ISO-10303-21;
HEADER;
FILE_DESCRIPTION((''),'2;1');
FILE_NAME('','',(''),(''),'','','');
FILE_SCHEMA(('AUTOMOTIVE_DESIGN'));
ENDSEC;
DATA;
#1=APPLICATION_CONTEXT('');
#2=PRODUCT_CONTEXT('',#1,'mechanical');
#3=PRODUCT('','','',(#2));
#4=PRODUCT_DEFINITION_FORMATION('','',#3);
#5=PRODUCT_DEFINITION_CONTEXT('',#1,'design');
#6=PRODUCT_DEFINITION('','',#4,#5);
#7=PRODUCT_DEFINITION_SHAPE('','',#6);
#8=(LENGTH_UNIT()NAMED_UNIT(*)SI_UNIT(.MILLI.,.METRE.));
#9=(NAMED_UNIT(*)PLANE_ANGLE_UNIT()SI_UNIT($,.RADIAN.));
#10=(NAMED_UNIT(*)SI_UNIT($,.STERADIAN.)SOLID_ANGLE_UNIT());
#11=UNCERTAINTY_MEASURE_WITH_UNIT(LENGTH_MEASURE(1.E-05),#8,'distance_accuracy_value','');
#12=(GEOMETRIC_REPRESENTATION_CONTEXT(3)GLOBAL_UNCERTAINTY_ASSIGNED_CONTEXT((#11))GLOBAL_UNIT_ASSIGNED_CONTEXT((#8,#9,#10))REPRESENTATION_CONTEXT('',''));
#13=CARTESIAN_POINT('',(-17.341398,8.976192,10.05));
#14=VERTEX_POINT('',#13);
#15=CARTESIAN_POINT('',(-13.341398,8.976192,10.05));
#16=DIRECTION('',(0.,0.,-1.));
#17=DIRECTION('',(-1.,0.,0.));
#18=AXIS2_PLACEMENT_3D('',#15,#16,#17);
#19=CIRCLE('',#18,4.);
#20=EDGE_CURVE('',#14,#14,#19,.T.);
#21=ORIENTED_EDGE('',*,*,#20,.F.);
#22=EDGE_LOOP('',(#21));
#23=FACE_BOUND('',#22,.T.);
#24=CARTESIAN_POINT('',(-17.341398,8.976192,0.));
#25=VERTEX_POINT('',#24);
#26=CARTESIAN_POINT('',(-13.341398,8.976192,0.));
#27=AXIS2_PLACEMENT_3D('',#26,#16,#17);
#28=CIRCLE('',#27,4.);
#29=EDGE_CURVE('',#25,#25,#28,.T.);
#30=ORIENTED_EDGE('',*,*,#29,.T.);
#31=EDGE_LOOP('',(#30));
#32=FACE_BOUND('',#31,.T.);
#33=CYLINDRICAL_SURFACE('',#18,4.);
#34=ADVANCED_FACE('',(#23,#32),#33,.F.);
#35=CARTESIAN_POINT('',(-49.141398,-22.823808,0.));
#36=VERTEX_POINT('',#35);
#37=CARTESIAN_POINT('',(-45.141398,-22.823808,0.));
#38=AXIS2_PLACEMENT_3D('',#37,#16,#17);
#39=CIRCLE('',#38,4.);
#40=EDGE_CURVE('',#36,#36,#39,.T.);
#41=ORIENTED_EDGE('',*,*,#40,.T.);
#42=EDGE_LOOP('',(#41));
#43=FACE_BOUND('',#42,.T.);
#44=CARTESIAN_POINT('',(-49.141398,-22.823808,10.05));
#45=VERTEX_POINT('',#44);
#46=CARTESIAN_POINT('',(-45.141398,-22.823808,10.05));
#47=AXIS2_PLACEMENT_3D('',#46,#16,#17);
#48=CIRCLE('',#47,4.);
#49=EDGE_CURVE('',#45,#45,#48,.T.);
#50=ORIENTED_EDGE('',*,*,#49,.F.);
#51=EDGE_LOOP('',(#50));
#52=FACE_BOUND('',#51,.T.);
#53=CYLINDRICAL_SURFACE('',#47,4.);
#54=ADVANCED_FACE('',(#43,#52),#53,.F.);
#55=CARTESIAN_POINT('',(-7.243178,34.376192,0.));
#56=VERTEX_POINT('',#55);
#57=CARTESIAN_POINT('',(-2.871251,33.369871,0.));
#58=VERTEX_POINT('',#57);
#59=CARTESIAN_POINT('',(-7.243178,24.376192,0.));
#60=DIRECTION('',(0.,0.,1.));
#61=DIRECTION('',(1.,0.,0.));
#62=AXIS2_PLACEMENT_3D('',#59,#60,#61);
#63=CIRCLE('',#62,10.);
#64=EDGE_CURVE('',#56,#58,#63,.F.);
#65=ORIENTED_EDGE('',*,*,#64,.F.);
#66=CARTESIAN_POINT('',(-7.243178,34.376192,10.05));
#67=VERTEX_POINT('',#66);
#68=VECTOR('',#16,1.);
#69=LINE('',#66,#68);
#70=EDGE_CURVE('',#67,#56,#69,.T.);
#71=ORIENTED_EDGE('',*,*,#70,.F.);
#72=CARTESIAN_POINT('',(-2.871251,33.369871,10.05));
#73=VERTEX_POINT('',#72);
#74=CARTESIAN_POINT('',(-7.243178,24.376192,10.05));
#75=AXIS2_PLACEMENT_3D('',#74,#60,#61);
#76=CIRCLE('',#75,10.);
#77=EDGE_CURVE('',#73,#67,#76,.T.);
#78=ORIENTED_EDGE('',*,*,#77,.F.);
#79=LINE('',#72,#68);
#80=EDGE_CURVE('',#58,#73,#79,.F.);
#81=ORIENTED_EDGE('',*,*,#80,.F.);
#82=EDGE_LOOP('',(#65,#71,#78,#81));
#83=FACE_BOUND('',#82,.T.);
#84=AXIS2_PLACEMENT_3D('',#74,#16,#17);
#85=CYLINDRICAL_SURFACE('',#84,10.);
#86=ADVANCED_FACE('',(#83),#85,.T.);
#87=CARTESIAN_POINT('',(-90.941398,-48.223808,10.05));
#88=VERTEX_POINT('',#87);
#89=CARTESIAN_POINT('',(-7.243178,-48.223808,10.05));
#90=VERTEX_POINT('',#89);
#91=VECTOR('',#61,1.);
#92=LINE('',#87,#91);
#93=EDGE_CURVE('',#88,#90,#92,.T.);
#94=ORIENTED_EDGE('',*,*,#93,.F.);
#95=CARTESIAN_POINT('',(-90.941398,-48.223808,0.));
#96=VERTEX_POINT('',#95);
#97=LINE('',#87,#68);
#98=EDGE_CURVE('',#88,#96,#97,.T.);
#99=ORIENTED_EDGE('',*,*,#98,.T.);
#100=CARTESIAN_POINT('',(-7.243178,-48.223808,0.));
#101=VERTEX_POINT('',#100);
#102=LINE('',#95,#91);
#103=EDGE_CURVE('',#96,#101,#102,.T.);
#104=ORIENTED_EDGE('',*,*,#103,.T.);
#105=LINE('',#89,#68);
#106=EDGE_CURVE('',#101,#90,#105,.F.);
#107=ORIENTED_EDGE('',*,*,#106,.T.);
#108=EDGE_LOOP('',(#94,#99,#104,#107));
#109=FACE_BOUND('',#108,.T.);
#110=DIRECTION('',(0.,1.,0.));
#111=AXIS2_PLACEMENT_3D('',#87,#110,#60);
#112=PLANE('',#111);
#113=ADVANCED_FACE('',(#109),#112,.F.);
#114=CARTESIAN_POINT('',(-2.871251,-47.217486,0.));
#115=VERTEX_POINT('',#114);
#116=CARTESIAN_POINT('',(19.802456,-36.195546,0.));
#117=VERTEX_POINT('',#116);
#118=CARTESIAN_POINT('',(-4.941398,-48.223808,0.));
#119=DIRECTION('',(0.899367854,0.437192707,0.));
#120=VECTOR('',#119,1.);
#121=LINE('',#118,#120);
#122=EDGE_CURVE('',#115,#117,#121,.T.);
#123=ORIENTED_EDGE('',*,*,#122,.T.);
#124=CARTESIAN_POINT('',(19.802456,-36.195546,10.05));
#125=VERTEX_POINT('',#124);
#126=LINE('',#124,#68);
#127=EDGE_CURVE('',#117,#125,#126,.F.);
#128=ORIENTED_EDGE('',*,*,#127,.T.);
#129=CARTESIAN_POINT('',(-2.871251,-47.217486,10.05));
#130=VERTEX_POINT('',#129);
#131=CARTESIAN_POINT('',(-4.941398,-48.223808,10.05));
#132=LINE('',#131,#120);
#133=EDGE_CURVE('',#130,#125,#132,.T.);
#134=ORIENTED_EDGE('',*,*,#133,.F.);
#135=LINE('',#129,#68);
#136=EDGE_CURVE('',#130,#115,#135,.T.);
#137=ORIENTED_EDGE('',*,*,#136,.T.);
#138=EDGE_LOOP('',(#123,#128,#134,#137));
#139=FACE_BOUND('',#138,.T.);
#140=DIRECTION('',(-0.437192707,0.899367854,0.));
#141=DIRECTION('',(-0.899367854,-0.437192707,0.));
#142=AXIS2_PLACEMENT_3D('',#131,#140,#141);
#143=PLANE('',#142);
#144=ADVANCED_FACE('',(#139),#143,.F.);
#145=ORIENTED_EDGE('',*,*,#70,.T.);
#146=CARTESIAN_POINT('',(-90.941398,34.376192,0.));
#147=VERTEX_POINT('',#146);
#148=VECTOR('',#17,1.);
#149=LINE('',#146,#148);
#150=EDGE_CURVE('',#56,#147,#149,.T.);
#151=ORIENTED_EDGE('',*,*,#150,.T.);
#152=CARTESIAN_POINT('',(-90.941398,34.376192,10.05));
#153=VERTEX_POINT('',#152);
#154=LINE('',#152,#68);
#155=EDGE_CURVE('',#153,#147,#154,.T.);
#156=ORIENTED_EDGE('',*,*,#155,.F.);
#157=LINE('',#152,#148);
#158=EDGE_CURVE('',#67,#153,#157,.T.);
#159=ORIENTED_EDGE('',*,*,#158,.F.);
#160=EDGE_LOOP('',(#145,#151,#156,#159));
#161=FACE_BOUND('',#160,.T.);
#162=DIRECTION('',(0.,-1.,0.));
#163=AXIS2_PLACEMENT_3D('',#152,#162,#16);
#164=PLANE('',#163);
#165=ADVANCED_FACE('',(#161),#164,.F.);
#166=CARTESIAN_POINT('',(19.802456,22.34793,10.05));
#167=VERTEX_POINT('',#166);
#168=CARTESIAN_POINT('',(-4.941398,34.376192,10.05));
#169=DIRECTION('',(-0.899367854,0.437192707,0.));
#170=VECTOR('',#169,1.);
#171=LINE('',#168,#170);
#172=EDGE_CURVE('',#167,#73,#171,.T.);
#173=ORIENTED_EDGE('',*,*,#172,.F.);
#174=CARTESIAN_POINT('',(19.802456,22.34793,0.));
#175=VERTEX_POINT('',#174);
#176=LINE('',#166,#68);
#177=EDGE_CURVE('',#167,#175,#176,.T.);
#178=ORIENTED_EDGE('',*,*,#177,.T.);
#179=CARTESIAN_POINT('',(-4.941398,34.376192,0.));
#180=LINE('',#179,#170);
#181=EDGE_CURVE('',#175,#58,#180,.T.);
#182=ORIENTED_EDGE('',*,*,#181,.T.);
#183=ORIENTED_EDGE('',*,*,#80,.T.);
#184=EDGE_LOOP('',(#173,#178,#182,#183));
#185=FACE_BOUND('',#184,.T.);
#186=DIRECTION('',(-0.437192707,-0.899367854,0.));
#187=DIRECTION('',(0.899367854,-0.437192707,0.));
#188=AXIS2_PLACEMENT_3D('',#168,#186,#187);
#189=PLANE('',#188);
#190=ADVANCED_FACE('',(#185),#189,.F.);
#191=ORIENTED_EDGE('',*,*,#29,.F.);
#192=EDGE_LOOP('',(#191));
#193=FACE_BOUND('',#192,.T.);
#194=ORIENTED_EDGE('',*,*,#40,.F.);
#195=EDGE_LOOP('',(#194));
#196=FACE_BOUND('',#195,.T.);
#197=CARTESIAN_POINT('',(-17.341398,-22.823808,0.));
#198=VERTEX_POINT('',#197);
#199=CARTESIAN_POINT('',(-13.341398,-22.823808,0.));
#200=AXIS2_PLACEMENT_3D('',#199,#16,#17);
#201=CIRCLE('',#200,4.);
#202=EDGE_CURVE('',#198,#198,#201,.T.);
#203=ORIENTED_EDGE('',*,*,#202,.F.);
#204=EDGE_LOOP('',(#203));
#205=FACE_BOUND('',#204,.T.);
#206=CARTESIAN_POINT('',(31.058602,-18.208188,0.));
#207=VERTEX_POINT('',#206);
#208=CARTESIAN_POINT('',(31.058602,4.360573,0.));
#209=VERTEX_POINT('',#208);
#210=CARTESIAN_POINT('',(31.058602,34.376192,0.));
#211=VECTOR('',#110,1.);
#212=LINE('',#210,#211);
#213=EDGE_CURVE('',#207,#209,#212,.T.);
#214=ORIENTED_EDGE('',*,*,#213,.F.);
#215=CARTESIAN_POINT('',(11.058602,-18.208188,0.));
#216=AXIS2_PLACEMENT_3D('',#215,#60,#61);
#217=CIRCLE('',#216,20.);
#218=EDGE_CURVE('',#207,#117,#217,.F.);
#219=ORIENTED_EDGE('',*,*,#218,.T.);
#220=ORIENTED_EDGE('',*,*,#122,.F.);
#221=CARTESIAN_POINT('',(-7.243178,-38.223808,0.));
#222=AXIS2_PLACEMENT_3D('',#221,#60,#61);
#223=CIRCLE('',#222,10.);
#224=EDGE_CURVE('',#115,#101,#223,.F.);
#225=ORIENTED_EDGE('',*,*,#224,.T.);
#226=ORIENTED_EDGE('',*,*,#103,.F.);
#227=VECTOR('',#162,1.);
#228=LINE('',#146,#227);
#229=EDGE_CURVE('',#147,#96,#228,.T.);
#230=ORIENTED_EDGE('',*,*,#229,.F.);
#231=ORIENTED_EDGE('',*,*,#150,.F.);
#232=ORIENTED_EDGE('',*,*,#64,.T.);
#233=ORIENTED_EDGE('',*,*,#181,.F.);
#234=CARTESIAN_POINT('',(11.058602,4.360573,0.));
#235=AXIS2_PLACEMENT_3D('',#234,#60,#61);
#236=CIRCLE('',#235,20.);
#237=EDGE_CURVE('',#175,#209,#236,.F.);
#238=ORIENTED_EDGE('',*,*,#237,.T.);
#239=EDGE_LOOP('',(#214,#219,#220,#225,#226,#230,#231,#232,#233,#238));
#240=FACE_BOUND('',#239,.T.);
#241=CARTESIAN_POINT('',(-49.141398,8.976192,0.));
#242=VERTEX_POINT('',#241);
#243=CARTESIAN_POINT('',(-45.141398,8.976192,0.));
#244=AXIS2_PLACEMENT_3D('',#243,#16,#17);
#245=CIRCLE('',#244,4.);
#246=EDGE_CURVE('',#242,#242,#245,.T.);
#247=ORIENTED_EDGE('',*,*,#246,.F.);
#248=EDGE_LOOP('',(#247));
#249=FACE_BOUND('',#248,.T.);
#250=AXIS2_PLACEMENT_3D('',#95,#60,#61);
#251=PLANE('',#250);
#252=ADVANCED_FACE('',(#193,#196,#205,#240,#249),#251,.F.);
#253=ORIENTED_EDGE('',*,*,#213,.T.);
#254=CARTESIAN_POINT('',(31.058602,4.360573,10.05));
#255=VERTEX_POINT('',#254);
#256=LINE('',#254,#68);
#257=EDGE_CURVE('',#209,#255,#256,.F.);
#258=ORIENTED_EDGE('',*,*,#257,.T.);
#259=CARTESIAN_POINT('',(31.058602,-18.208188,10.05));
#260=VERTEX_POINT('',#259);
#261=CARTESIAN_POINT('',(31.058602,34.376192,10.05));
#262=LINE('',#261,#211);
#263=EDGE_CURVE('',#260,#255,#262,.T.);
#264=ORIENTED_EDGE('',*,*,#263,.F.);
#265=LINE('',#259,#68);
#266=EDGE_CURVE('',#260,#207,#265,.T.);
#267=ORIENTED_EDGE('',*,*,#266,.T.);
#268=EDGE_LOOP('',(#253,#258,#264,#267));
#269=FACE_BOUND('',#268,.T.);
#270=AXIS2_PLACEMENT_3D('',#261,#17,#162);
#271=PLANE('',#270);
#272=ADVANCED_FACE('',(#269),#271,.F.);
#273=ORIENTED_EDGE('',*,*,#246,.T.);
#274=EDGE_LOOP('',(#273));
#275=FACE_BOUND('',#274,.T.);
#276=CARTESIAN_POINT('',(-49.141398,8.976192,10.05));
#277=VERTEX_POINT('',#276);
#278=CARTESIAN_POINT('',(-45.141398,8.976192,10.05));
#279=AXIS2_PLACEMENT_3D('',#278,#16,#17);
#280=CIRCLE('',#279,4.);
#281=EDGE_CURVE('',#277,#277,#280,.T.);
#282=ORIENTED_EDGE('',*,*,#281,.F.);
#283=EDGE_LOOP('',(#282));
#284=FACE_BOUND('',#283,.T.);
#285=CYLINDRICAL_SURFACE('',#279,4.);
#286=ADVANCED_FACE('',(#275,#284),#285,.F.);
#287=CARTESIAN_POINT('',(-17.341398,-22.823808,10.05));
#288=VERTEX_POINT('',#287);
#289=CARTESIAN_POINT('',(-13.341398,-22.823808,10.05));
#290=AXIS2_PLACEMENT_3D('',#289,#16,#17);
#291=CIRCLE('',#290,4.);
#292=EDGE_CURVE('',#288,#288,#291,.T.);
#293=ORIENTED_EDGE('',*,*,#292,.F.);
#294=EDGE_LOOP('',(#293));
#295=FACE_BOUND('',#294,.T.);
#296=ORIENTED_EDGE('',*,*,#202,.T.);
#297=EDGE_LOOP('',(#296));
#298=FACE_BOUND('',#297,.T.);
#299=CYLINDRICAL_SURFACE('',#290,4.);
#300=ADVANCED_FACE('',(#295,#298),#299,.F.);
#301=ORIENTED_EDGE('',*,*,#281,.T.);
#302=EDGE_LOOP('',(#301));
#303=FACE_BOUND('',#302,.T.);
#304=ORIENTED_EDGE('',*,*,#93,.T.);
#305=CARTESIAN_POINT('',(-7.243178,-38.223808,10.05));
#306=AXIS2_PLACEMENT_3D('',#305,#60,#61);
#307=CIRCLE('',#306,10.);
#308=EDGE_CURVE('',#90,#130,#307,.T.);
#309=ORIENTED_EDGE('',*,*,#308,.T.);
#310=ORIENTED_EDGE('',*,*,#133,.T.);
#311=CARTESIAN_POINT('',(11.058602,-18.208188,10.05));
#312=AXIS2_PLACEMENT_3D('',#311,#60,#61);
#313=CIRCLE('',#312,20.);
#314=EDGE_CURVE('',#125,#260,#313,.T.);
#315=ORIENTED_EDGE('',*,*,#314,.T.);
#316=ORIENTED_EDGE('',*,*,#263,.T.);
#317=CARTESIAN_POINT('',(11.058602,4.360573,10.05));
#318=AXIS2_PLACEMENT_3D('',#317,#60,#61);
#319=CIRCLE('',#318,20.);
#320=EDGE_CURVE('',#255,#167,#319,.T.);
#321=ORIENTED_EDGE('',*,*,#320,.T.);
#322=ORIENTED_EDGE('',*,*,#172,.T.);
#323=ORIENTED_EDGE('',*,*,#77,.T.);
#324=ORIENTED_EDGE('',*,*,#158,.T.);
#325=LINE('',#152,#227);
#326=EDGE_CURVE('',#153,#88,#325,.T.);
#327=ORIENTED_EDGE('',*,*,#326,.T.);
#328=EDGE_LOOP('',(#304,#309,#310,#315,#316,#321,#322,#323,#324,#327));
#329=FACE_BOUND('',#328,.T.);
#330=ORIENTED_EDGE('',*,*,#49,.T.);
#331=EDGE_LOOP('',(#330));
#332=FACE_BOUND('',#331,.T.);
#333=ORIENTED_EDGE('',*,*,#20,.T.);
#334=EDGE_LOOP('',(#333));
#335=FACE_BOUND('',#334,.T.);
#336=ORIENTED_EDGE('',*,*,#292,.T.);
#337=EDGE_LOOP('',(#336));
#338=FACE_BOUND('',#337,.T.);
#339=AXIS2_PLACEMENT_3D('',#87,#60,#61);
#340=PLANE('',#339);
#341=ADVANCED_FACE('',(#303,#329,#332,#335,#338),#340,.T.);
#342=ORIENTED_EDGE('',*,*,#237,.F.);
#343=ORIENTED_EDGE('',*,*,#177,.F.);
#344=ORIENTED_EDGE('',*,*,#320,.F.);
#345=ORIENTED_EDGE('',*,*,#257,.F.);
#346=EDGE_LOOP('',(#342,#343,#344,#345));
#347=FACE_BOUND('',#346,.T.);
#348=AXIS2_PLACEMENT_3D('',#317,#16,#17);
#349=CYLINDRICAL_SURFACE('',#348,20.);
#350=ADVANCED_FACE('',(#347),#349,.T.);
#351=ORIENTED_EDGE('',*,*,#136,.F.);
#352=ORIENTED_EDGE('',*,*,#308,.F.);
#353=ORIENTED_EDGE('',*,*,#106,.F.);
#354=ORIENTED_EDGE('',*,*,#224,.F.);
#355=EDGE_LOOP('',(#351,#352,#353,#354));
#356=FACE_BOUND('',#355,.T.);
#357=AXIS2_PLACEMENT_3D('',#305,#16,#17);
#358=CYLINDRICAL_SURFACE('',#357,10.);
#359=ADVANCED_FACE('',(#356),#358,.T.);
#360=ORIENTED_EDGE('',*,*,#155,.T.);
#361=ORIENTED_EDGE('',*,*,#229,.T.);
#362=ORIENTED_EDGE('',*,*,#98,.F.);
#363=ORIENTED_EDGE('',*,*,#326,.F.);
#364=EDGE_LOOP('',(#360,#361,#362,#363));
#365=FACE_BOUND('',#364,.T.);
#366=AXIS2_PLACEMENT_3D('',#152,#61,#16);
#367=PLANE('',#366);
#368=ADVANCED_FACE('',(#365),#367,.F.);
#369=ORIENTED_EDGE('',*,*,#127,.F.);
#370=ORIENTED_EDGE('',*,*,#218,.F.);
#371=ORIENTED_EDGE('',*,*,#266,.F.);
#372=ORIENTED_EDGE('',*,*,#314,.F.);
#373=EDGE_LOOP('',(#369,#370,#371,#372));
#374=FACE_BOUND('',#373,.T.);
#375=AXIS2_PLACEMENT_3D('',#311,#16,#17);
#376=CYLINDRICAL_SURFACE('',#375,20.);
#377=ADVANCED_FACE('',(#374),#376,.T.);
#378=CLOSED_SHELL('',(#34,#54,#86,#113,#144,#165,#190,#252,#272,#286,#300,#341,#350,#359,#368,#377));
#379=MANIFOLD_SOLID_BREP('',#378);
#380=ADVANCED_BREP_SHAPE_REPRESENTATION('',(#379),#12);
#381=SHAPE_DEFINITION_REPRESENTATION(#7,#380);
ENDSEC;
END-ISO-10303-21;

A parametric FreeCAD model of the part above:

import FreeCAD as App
import Part
import Sketcher

V = App.Vector
Q = App.Units.Quantity


def edges_at(feature, points):
    """Names of the edges that pass closest to the given points."""
    edges = feature.Shape.Edges
    near = lambda p: min(range(len(edges)), key=lambda i: edges[i].distToShape(Part.Vertex(*p))[0])
    return sorted({f"Edge{near(p) + 1}" for p in points})

doc = App.newDocument("Part")
params = doc.addObject("Spreadsheet::Sheet", "Params")
for row, (alias, value) in enumerate([
    ("sketch1_width", "122 mm"),
    ("sketch1_height", "82.6 mm"),
    ("pad1_length", "10.05 mm"),
    ("sketch2_diameter", "8 mm"),
    ("fillet_radius", "10 mm"),
    ("fillet2_radius", "20 mm"),
], start=1):
    params.set(f"A{row}", alias)
    params.set(f"B{row}", "=" + value)
    params.setAlias(f"B{row}", alias)

body = doc.addObject("PartDesign::Body", "Body")

# Sketch on XY plane
sketch1 = body.newObject("Sketcher::SketchObject", "Sketch")
sketch1.AttachmentSupport = (doc.getObject("XY_Plane"), [""])
sketch1.MapMode = "FlatFace"
sketch1.addGeometry(Part.LineSegment(V(-91, 34, 0), V(-91, -48, 0)), False)
sketch1.addGeometry(Part.LineSegment(V(-91, -48, 0), V(31, -48, 0)), False)
sketch1.addGeometry(Part.LineSegment(V(31, -48, 0), V(31, 34, 0)), False)
sketch1.addGeometry(Part.LineSegment(V(31, 34, 0), V(-91, 34, 0)), False)
sketch1.addConstraint(Sketcher.Constraint("Coincident", 0, 2, 1, 1))
sketch1.addConstraint(Sketcher.Constraint("Coincident", 1, 2, 2, 1))
sketch1.addConstraint(Sketcher.Constraint("Coincident", 2, 2, 3, 1))
sketch1.addConstraint(Sketcher.Constraint("Coincident", 3, 2, 0, 1))
sketch1.addConstraint(Sketcher.Constraint("Vertical", 0))
sketch1.addConstraint(Sketcher.Constraint("Horizontal", 1))
sketch1.addConstraint(Sketcher.Constraint("Vertical", 2))
sketch1.addConstraint(Sketcher.Constraint("Horizontal", 3))
sketch1.addConstraint(Sketcher.Constraint("DistanceX", 1, 1, 1, 2, Q("122 mm")))
sketch1.addConstraint(Sketcher.Constraint("DistanceY", 0, 2, 0, 1, Q("82.6 mm")))
sketch1.addConstraint(Sketcher.Constraint("DistanceX", 0, 2, -1, 1, Q("90.941398 mm")))
sketch1.addConstraint(Sketcher.Constraint("DistanceY", 0, 2, -1, 1, Q("48.223808 mm")))
sketch1.setExpression("Constraints[8]", "Params.sketch1_width")
sketch1.setExpression("Constraints[9]", "Params.sketch1_height")
pad1 = body.newObject("PartDesign::Pad", "Pad")
pad1.Profile = sketch1
pad1.setExpression("Length", "Params.pad1_length")

# Sketch on XY plane
sketch2 = body.newObject("Sketcher::SketchObject", "Sketch001")
sketch2.AttachmentSupport = (doc.getObject("XY_Plane"), [""])
sketch2.MapMode = "FlatFace"
sketch2.addGeometry(Part.Circle(V(-45.1, 9, 0), V(0, 0, 1), 4), False)
sketch2.addGeometry(Part.Circle(V(-45.1, -22.8, 0), V(0, 0, 1), 4), False)
sketch2.addGeometry(Part.Circle(V(-13.3, 9, 0), V(0, 0, 1), 4), False)
sketch2.addGeometry(Part.Circle(V(-13.3, -22.8, 0), V(0, 0, 1), 4), False)
sketch2.addConstraint(Sketcher.Constraint("Equal", 0, 1))
sketch2.addConstraint(Sketcher.Constraint("Equal", 1, 2))
sketch2.addConstraint(Sketcher.Constraint("Equal", 2, 3))
sketch2.addConstraint(Sketcher.Constraint("Horizontal", 0, 3, 2, 3))
sketch2.addConstraint(Sketcher.Constraint("Horizontal", 1, 3, 3, 3))
sketch2.addConstraint(Sketcher.Constraint("Vertical", 0, 3, 1, 3))
sketch2.addConstraint(Sketcher.Constraint("Vertical", 2, 3, 3, 3))
sketch2.addConstraint(Sketcher.Constraint("Diameter", 0, Q("8 mm")))
sketch2.addConstraint(Sketcher.Constraint("DistanceY", 1, 3, 0, 3, Q("31.8 mm")))
sketch2.addConstraint(Sketcher.Constraint("DistanceX", 0, 3, 2, 3, Q("31.8 mm")))
sketch2.addConstraint(Sketcher.Constraint("DistanceX", 0, 3, -1, 1, Q("45.141398 mm")))
sketch2.addConstraint(Sketcher.Constraint("DistanceY", -1, 1, 0, 3, Q("8.976192 mm")))
sketch2.setExpression("Constraints[7]", "Params.sketch2_diameter")
pocket1 = body.newObject("PartDesign::Pocket", "Pocket")
pocket1.Profile = sketch2
pocket1.Type = "ThroughAll"
pocket1.Reversed = True

# Sketch on XY plane
sketch3 = body.newObject("Sketcher::SketchObject", "Sketch002")
sketch3.AttachmentSupport = (doc.getObject("XY_Plane"), [""])
sketch3.MapMode = "FlatFace"
sketch3.addGeometry(Part.LineSegment(V(31, 17, 0), V(-5, 34, 0)), False)
sketch3.addGeometry(Part.LineSegment(V(-5, 34, 0), V(39, 43, 0)), False)
sketch3.addGeometry(Part.LineSegment(V(39, 43, 0), V(31, 17, 0)), False)
sketch3.addGeometry(Part.LineSegment(V(31, -31, 0), V(39, -57, 0)), False)
sketch3.addGeometry(Part.LineSegment(V(39, -57, 0), V(-5, -48, 0)), False)
sketch3.addGeometry(Part.LineSegment(V(-5, -48, 0), V(31, -31, 0)), False)
sketch3.addConstraint(Sketcher.Constraint("Coincident", 0, 2, 1, 1))
sketch3.addConstraint(Sketcher.Constraint("Coincident", 1, 2, 2, 1))
sketch3.addConstraint(Sketcher.Constraint("Coincident", 2, 2, 0, 1))
sketch3.addConstraint(Sketcher.Constraint("Coincident", 3, 2, 4, 1))
sketch3.addConstraint(Sketcher.Constraint("Coincident", 4, 2, 5, 1))
sketch3.addConstraint(Sketcher.Constraint("Coincident", 5, 2, 3, 1))
sketch3.addConstraint(Sketcher.Constraint("Vertical", 1, 2, 3, 2))
sketch3.addConstraint(Sketcher.Constraint("Vertical", 0, 2, 4, 2))
sketch3.addConstraint(Sketcher.Constraint("Vertical", 2, 2, 5, 2))
sketch3.addConstraint(Sketcher.Constraint("Equal", 2, 3))
sketch3.addConstraint(Sketcher.Constraint("Equal", 1, 4))
sketch3.addConstraint(Sketcher.Constraint("DistanceX", 0, 2, 2, 2, Q("36 mm")))
sketch3.addConstraint(Sketcher.Constraint("DistanceY", 2, 2, 0, 2, Q("17.5 mm")))
sketch3.addConstraint(Sketcher.Constraint("DistanceY", 4, 2, 2, 2, Q("65.1 mm")))
sketch3.addConstraint(Sketcher.Constraint("DistanceX", 0, 2, -1, 1, Q("4.941398 mm")))
sketch3.addConstraint(Sketcher.Constraint("DistanceX", -1, 1, 1, 2, Q("39.457911 mm")))
sketch3.addConstraint(Sketcher.Constraint("DistanceY", 3, 2, 1, 2, Q("99.71585 mm")))
sketch3.addConstraint(Sketcher.Constraint("DistanceY", -1, 1, 0, 2, Q("34.376192 mm")))
pocket2 = body.newObject("PartDesign::Pocket", "Pocket001")
pocket2.Profile = sketch3
pocket2.Type = "ThroughAll"
pocket2.Reversed = True
doc.recompute()

fillet = body.newObject("PartDesign::Fillet", "Fillet")
fillet.Base = (pocket2, edges_at(pocket2, [(-4.941, 34.376, 5.025), (-4.941, -48.224, 5.025)]))
fillet.setExpression("Radius", "Params.fillet_radius")
doc.recompute()

fillet2 = body.newObject("PartDesign::Fillet", "Fillet001")
fillet2.Base = (fillet, edges_at(fillet, [(31.059, 16.876, 5.025), (31.059, -30.724, 5.025)]))
fillet2.setExpression("Radius", "Params.fillet2_radius")

doc.recompute()
